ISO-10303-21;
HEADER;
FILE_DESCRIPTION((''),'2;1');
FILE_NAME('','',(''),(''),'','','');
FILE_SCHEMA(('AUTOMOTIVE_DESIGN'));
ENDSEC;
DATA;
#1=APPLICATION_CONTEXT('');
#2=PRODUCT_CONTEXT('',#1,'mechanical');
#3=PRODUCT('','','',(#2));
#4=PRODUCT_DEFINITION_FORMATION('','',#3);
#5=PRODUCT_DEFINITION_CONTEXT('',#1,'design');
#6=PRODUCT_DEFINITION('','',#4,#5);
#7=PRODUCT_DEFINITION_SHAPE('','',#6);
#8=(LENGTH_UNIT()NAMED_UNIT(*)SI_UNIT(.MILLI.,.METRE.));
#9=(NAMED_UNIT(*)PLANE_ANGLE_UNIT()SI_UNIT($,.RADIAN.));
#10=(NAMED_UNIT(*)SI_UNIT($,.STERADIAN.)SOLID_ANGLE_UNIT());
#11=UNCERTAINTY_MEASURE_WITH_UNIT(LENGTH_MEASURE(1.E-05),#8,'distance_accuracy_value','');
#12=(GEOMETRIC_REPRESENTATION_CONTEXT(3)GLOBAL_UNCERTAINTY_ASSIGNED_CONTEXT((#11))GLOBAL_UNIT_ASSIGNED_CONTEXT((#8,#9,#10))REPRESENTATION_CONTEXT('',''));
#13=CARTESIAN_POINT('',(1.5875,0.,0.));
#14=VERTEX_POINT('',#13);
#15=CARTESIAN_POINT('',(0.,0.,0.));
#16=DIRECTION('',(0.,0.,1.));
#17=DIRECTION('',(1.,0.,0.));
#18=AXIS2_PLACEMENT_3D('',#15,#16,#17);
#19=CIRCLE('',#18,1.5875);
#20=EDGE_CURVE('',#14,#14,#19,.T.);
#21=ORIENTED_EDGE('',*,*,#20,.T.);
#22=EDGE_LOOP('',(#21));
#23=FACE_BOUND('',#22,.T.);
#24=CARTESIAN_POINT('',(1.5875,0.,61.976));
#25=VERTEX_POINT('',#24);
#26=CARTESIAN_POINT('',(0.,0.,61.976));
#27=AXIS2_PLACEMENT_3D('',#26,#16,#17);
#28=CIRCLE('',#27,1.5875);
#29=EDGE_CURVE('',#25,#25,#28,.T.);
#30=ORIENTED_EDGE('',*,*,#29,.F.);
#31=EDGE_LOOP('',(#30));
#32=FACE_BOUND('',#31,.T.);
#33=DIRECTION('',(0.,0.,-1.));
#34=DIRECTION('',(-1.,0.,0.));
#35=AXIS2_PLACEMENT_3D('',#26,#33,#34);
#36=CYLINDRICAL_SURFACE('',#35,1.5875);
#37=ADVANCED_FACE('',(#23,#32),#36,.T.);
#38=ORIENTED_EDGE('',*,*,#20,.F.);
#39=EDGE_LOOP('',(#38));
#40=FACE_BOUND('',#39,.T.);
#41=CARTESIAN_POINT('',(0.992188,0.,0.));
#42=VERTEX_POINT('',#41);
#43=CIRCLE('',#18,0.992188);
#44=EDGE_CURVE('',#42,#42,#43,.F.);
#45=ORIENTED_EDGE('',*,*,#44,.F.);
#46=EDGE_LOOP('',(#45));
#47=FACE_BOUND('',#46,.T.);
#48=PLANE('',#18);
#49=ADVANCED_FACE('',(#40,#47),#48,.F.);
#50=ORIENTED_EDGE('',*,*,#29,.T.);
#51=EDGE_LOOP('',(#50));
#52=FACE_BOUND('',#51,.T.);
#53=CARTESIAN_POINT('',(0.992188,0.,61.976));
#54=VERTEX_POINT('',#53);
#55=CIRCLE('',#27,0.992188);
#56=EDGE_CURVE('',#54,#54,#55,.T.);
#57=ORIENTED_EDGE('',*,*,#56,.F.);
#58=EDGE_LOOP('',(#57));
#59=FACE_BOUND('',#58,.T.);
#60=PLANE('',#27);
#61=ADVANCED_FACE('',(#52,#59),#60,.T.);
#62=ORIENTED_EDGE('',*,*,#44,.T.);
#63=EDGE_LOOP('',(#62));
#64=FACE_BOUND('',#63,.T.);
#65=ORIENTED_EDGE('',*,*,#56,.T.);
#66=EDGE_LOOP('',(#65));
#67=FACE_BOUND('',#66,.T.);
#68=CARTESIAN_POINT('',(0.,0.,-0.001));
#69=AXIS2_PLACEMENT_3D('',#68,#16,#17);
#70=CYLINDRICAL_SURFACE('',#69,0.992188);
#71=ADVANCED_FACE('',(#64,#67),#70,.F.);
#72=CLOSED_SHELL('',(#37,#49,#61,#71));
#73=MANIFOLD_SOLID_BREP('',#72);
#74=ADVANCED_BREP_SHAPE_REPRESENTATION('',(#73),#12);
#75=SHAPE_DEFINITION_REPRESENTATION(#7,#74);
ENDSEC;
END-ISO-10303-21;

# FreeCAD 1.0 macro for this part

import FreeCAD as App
import Part
import Sketcher
Q = App.Units.Quantity

doc = App.newDocument("Part")
body = doc.addObject("PartDesign::Body", "Body")

# Sketch on XY plane
sketch1 = body.newObject("Sketcher::SketchObject", "Sketch")
sketch1.AttachmentSupport = (doc.getObject("XY_Plane"), [""])
sketch1.MapMode = "FlatFace"
sketch1.addGeometry(Part.Circle(App.Vector(0, 0, 0), App.Vector(0, 0, 1), 1.6), False)
sketch1.addConstraint([
    Sketcher.Constraint("Coincident", 0, 3, -1, 1),
    Sketcher.Constraint("Diameter", 0, Q("0.125 in")),
])
pad1 = body.newObject("PartDesign::Pad", "Pad")
pad1.Profile = sketch1
pad1.Length = Q("2.44 in")

# Sketch on XY plane
sketch2 = body.newObject("Sketcher::SketchObject", "Sketch001")
sketch2.AttachmentSupport = (doc.getObject("XY_Plane"), [""])
sketch2.MapMode = "FlatFace"
sketch2.AttachmentOffset = App.Placement(App.Vector(0, 0, 2.44 * 25.4), App.Rotation())
sketch2.addGeometry(Part.Circle(App.Vector(0, 0, 0), App.Vector(0, 0, 1), 1), False)
sketch2.addConstraint([
    Sketcher.Constraint("Coincident", 0, 3, -1, 1),
    Sketcher.Constraint("Diameter", 0, Q("0.078125 in")),
])
pocket1 = body.newObject("PartDesign::Pocket", "Pocket")
pocket1.Profile = sketch2
pocket1.Type = "UpToFirst"

doc.recompute()
